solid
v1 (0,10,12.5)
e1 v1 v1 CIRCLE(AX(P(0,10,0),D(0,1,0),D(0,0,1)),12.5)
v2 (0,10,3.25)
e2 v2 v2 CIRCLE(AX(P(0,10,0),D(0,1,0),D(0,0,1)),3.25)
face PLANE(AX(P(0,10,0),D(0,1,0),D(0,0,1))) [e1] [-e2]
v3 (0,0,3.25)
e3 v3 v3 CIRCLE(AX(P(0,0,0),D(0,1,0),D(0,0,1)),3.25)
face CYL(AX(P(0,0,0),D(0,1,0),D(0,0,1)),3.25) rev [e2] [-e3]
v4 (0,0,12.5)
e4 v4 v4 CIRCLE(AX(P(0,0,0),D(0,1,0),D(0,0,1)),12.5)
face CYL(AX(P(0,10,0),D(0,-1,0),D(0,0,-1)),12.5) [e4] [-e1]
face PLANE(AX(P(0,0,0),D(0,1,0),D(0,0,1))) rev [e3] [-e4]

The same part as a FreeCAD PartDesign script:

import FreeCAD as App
import Part
import Sketcher

V = App.Vector

doc = App.newDocument("Part")
body = doc.addObject("PartDesign::Body", "Body")

# Sketch on XZ plane
sketch1 = body.newObject("Sketcher::SketchObject", "Sketch")
sketch1.AttachmentSupport = (doc.getObject("XZ_Plane"), [""])
sketch1.MapMode = "FlatFace"
sketch1.addGeometry(Part.Circle(V(0, 0, 0), V(0, 0, 1), 12.5), False)
sketch1.addConstraint([
    Sketcher.Constraint("Coincident", 0, 3, -1, 1),
    Sketcher.Constraint("Diameter", 0, 25.0),
])
pad1 = body.newObject("PartDesign::Pad", "Pad")
pad1.Profile = sketch1
pad1.Length = 10
pad1.Reversed = True

# Sketch on XZ plane
sketch2 = body.newObject("Sketcher::SketchObject", "Sketch001")
sketch2.AttachmentSupport = (doc.getObject("XZ_Plane"), [""])
sketch2.MapMode = "FlatFace"
sketch2.AttachmentOffset = App.Placement(V(0, 0, -10), App.Rotation())
sketch2.addGeometry(Part.Circle(V(0, 0, 0), V(0, 0, 1), 3.25), False)
sketch2.addConstraint([
    Sketcher.Constraint("Coincident", 0, 3, -1, 1),
    Sketcher.Constraint("Diameter", 0, 6.5),
])
pocket1 = body.newObject("PartDesign::Pocket", "Pocket")
pocket1.Profile = sketch2
pocket1.Type = "ThroughAll"
pocket1.Reversed = True

doc.recompute()
